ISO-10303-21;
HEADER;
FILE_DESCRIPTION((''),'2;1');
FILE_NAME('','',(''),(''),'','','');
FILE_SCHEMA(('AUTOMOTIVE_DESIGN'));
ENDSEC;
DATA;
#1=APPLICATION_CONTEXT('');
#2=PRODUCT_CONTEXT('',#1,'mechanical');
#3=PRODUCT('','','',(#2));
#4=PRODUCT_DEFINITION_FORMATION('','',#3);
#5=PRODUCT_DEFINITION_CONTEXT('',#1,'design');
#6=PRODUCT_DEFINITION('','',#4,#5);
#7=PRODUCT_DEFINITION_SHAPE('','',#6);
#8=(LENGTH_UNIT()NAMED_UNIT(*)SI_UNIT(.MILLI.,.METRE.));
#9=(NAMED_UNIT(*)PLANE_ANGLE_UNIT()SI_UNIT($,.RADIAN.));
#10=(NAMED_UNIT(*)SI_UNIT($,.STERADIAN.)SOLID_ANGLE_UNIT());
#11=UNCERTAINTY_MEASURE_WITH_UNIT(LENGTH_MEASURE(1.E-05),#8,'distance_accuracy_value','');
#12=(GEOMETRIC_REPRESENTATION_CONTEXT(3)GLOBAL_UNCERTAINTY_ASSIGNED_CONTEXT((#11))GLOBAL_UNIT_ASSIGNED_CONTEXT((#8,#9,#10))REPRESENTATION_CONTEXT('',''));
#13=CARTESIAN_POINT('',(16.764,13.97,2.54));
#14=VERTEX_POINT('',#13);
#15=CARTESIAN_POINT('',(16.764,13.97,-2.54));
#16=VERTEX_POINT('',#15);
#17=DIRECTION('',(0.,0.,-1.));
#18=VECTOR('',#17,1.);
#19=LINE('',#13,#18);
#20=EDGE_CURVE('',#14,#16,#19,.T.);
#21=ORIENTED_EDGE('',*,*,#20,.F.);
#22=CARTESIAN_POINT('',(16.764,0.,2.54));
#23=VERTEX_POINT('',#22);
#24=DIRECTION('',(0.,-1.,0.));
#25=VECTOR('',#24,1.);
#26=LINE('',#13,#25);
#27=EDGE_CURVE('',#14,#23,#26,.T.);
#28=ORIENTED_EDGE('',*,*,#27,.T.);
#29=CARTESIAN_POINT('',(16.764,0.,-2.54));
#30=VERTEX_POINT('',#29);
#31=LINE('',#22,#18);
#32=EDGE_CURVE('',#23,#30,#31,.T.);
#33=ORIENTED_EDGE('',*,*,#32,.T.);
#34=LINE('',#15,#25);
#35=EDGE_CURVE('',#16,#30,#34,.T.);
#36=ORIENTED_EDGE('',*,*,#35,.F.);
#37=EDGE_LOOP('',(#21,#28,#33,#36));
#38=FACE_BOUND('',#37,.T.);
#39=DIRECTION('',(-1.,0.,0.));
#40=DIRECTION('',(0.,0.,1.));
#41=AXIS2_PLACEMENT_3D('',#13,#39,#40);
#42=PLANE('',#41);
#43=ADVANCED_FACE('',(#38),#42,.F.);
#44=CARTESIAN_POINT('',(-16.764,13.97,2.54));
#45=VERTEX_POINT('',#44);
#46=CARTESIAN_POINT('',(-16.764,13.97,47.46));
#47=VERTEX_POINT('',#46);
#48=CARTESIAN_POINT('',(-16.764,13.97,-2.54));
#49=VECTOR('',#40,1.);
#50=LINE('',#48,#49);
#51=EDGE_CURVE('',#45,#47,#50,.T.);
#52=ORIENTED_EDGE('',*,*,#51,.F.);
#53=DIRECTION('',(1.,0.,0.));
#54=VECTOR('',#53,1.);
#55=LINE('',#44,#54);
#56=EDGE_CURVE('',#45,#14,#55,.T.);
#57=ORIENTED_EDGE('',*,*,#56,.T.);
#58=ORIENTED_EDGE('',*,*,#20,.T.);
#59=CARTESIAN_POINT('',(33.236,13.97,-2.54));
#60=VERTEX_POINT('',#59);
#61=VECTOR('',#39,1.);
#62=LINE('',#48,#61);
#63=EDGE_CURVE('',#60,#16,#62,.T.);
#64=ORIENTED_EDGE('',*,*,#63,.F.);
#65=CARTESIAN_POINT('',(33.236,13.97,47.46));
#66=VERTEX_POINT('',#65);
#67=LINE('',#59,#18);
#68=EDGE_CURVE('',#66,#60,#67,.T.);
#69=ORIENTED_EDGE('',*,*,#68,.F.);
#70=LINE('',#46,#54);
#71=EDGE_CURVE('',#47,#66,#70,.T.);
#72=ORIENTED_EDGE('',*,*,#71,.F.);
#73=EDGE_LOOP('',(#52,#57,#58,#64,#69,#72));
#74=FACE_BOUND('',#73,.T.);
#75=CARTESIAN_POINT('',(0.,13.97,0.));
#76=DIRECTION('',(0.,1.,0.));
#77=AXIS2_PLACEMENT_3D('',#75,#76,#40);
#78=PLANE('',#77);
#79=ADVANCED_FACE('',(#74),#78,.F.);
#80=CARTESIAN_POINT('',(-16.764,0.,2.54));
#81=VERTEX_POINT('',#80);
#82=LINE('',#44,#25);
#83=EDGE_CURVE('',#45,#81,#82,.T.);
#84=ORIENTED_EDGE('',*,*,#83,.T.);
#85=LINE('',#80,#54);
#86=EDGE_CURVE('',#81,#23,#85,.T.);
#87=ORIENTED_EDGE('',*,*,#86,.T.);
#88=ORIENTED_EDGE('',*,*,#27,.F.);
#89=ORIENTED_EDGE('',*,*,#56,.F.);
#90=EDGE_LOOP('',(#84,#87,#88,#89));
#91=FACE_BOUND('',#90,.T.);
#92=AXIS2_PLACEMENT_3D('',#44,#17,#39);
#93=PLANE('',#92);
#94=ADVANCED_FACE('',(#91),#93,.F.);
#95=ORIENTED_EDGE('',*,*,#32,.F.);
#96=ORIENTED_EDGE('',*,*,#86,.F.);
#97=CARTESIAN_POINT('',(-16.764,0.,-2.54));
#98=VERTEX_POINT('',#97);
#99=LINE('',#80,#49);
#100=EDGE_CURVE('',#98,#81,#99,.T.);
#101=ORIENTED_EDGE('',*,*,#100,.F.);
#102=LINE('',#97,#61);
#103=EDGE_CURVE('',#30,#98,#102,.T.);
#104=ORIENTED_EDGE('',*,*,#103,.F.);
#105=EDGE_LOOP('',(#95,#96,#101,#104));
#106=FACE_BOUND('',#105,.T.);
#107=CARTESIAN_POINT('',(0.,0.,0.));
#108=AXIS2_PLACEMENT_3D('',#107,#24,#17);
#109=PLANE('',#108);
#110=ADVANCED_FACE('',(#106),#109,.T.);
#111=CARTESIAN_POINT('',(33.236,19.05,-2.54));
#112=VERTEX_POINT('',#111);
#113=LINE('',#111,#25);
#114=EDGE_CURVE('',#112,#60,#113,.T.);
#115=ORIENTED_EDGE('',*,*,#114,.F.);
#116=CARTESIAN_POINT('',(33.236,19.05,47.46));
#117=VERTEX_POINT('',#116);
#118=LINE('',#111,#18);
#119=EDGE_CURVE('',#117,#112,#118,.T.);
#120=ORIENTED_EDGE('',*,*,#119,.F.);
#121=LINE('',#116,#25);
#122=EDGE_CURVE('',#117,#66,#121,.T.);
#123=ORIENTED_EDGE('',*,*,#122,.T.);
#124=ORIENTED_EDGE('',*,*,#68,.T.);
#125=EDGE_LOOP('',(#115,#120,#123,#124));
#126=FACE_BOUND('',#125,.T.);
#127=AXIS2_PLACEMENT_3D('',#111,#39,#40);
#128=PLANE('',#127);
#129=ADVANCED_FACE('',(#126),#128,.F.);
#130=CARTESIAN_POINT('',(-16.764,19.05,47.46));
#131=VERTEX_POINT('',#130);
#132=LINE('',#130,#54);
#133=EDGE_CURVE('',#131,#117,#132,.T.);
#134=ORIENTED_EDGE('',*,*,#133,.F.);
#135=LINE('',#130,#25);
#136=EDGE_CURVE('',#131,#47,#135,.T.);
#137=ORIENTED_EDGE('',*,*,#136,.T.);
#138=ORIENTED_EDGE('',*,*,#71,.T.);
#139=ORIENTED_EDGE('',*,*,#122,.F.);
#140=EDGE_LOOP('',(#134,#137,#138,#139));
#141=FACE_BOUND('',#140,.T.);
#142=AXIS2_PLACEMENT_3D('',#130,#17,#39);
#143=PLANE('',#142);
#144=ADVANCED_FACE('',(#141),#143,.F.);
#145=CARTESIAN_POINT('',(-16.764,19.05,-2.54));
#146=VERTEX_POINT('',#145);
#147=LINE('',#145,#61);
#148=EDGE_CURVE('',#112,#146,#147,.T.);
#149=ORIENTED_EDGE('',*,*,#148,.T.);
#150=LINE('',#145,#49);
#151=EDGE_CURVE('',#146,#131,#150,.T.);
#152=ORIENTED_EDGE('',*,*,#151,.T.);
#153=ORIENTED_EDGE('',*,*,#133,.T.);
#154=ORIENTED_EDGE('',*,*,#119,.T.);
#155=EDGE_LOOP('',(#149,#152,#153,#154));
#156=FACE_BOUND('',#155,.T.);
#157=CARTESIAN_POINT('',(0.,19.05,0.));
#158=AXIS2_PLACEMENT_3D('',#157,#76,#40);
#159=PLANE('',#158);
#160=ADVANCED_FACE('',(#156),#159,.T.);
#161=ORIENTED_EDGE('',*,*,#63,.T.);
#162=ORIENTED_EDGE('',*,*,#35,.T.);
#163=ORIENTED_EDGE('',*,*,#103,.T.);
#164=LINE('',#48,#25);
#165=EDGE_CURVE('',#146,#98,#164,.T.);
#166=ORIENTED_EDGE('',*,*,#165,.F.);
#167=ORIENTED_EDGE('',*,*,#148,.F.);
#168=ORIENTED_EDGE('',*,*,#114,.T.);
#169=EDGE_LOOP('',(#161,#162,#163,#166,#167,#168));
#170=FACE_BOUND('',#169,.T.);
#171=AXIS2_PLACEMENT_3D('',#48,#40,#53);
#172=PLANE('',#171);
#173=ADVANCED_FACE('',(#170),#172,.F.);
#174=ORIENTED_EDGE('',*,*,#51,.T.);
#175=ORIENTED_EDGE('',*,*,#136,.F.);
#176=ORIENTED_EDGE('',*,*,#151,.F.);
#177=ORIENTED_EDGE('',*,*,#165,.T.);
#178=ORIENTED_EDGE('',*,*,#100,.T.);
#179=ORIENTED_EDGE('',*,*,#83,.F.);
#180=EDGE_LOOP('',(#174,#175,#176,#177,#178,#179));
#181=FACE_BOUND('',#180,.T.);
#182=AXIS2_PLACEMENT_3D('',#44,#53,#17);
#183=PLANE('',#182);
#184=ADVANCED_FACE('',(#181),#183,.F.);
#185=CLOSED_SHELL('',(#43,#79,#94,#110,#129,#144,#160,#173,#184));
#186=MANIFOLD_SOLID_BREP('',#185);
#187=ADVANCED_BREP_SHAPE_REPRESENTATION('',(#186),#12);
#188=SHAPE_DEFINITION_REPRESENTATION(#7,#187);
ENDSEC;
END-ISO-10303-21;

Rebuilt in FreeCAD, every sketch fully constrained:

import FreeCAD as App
import Part
import Sketcher

V = App.Vector
Q = App.Units.Quantity


def add_polygon(sketch, points):
    """Adds a closed chain of lines whose ends are joined by coincident constraints."""
    first, n = sketch.GeometryCount, len(points)
    for a, b in zip(points, points[1:] + points[:1]):
        sketch.addGeometry(Part.LineSegment(App.Vector(*a, 0), App.Vector(*b, 0)), False)
    for i in range(n):
        sketch.addConstraint(Sketcher.Constraint("Coincident", first + i, 2, first + (i + 1) % n, 1))

doc = App.newDocument("Part")
body = doc.addObject("PartDesign::Body", "Body")

# Sketch on XZ plane
sketch1 = body.newObject("Sketcher::SketchObject", "Sketch")
sketch1.AttachmentSupport = (doc.getObject("XZ_Plane"), [""])
sketch1.MapMode = "FlatFace"
add_polygon(sketch1, [(-17, -3), (-17, 3), (17, 3), (17, -3)])  # lines 0-3
sketch1.addConstraint([
    Sketcher.Constraint("Vertical", 0),
    Sketcher.Constraint("Horizontal", 1),
    Sketcher.Constraint("Vertical", 2),
    Sketcher.Constraint("Horizontal", 3),
    Sketcher.Constraint("Symmetric", 0, 2, 2, 2, -1, 1),
    Sketcher.Constraint("DistanceY", 0, 1, 0, 2, Q("0.2 in")),
    Sketcher.Constraint("DistanceX", 1, 1, 1, 2, Q("1.32 in")),
])
pad1 = body.newObject("PartDesign::Pad", "Pad")
pad1.Profile = sketch1
pad1.Length = Q("0.55 in")
pad1.Reversed = True

# Sketch on XZ plane
sketch2 = body.newObject("Sketcher::SketchObject", "Sketch001")
sketch2.AttachmentSupport = (doc.getObject("XZ_Plane"), [""])
sketch2.MapMode = "FlatFace"
sketch2.AttachmentOffset = App.Placement(V(0, 0, -0.55 * 25.4), App.Rotation())
add_polygon(sketch2, [(-17, -3), (-17, 47), (33, 47), (33, -3)])  # lines 0-3
sketch2.addConstraint([
    Sketcher.Constraint("Vertical", 0),
    Sketcher.Constraint("Horizontal", 1),
    Sketcher.Constraint("Vertical", 2),
    Sketcher.Constraint("Horizontal", 3),
    Sketcher.Constraint("Equal", 3, 0),
    Sketcher.Constraint("DistanceY", 2, 2, -1, 1, Q("0.1 in")),
    Sketcher.Constraint("DistanceX", 0, 2, -1, 1, Q("0.66 in")),
    Sketcher.Constraint("DistanceX", 1, 1, 1, 2, 50.0),
])
pad2 = body.newObject("PartDesign::Pad", "Pad001")
pad2.Profile = sketch2
pad2.Length = Q("0.2 in")
pad2.Reversed = True

doc.recompute()
